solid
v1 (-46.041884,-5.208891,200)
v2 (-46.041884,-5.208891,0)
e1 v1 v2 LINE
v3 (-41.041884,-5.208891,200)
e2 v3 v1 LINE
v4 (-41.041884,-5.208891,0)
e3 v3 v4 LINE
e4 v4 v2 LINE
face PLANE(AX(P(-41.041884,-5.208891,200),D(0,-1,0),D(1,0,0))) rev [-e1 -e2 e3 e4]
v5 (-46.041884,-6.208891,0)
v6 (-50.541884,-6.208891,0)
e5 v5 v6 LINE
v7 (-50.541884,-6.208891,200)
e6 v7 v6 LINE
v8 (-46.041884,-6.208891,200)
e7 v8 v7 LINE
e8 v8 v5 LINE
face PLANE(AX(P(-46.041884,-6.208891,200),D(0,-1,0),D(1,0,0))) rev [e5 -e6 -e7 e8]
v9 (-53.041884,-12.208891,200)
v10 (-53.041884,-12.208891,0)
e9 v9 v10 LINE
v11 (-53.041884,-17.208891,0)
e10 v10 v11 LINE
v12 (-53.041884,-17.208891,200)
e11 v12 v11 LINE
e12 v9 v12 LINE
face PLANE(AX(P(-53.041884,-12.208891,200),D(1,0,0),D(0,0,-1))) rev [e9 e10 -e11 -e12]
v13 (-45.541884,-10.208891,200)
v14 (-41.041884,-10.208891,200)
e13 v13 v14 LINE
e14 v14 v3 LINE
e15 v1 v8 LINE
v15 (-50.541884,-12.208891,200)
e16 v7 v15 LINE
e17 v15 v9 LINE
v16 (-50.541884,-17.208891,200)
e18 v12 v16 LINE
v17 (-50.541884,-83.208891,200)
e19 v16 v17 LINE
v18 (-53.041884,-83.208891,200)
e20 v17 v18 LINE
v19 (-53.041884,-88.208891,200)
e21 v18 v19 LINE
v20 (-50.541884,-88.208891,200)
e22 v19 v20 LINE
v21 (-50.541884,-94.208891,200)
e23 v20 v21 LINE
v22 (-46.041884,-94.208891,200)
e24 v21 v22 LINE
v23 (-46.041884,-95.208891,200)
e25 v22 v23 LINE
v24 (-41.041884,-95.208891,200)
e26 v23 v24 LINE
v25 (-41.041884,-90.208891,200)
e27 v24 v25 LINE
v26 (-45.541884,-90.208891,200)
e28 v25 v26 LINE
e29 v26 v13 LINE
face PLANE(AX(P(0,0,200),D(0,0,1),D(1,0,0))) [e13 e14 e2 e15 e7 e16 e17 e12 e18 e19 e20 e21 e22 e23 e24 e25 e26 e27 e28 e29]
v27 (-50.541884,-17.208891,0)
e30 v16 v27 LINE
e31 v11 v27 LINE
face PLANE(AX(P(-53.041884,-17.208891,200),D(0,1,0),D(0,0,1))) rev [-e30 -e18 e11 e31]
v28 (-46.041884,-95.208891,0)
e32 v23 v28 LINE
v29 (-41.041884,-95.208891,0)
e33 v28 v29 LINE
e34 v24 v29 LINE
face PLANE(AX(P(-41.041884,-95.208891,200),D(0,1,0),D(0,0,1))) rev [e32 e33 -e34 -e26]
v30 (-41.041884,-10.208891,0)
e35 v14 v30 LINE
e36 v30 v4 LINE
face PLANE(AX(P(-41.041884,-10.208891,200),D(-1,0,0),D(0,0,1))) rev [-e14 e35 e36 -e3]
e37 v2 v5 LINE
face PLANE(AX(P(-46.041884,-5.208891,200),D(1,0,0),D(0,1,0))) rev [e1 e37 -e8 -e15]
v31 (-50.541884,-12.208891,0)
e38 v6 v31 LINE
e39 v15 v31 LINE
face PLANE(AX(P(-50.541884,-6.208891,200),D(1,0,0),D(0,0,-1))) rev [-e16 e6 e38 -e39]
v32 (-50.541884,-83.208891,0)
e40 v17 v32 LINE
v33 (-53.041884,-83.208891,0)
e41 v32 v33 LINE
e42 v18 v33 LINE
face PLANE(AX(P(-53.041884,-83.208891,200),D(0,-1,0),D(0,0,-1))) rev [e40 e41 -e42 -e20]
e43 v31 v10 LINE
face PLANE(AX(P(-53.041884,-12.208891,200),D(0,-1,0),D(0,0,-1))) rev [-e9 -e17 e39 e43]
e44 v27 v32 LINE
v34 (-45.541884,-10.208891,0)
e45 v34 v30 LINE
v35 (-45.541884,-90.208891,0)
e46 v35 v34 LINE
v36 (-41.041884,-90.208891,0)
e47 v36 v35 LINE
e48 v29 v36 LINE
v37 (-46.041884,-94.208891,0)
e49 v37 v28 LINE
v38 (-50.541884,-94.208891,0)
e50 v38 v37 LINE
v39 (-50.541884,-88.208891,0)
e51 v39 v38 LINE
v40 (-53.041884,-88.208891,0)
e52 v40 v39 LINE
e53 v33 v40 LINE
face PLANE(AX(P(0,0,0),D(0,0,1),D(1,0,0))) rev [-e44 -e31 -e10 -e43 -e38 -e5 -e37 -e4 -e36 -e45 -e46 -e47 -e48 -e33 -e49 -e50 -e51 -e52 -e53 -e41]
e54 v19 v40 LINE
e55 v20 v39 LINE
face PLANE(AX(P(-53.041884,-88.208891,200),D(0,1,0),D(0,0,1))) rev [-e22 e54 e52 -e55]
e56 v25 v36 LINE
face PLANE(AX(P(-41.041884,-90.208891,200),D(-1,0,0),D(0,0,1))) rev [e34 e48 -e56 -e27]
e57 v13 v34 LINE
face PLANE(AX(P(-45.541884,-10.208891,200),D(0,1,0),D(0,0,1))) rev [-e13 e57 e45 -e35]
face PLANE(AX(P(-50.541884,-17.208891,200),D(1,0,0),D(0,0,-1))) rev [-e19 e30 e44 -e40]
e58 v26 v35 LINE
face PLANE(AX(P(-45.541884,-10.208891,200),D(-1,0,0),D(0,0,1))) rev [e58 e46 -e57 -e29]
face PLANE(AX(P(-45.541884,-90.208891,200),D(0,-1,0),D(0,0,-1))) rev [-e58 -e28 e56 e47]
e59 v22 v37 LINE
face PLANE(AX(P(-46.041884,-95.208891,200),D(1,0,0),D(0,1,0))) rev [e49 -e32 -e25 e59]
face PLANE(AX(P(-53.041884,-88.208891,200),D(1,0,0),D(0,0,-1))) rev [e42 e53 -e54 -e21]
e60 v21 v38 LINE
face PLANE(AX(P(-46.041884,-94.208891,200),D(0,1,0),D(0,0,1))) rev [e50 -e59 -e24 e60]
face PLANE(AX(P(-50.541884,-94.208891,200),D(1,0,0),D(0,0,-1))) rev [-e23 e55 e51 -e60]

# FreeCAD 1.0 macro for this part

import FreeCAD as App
import Part
import Sketcher

V = App.Vector
Q = App.Units.Quantity

doc = App.newDocument("Part")
body = doc.addObject("PartDesign::Body", "Body")

sketch1 = body.newObject("Sketcher::SketchObject", "Sketch")
sketch1.AttachmentSupport = (doc.getObject("XY_Plane"), [""])
sketch1.MapMode = "FlatFace"
sketch1.addGeometry(Part.LineSegment(V(-46, -5.2, 0), V(-46, -6.2, 0)), False)
sketch1.addGeometry(Part.LineSegment(V(-46, -6.2, 0), V(-50.5, -6.2, 0)), False)
sketch1.addGeometry(Part.LineSegment(V(-50.5, -6.2, 0), V(-50.5, -12.2, 0)), False)
sketch1.addGeometry(Part.LineSegment(V(-50.5, -12.2, 0), V(-53, -12.2, 0)), False)
sketch1.addGeometry(Part.LineSegment(V(-53, -12.2, 0), V(-53, -17.2, 0)), False)
sketch1.addGeometry(Part.LineSegment(V(-53, -17.2, 0), V(-50.5, -17.2, 0)), False)
sketch1.addGeometry(Part.LineSegment(V(-50.5, -17.2, 0), V(-50.5, -83.2, 0)), False)
sketch1.addGeometry(Part.LineSegment(V(-50.5, -83.2, 0), V(-53, -83.2, 0)), False)
sketch1.addGeometry(Part.LineSegment(V(-53, -83.2, 0), V(-53, -88.2, 0)), False)
sketch1.addGeometry(Part.LineSegment(V(-53, -88.2, 0), V(-50.5, -88.2, 0)), False)
sketch1.addGeometry(Part.LineSegment(V(-50.5, -88.2, 0), V(-50.5, -94.2, 0)), False)
sketch1.addGeometry(Part.LineSegment(V(-50.5, -94.2, 0), V(-46, -94.2, 0)), False)
sketch1.addGeometry(Part.LineSegment(V(-46, -94.2, 0), V(-46, -95.2, 0)), False)
sketch1.addGeometry(Part.LineSegment(V(-46, -95.2, 0), V(-41, -95.2, 0)), False)
sketch1.addGeometry(Part.LineSegment(V(-41, -95.2, 0), V(-41, -90.2, 0)), False)
sketch1.addGeometry(Part.LineSegment(V(-41, -90.2, 0), V(-45.5, -90.2, 0)), False)
sketch1.addGeometry(Part.LineSegment(V(-45.5, -90.2, 0), V(-45.5, -10.2, 0)), False)
sketch1.addGeometry(Part.LineSegment(V(-45.5, -10.2, 0), V(-41, -10.2, 0)), False)
sketch1.addGeometry(Part.LineSegment(V(-41, -10.2, 0), V(-41, -5.2, 0)), False)
sketch1.addGeometry(Part.LineSegment(V(-41, -5.2, 0), V(-46, -5.2, 0)), False)
sketch1.addConstraint(Sketcher.Constraint("Coincident", 0, 2, 1, 1))
sketch1.addConstraint(Sketcher.Constraint("Coincident", 1, 2, 2, 1))
sketch1.addConstraint(Sketcher.Constraint("Coincident", 2, 2, 3, 1))
sketch1.addConstraint(Sketcher.Constraint("Coincident", 3, 2, 4, 1))
sketch1.addConstraint(Sketcher.Constraint("Coincident", 4, 2, 5, 1))
sketch1.addConstraint(Sketcher.Constraint("Coincident", 5, 2, 6, 1))
sketch1.addConstraint(Sketcher.Constraint("Coincident", 6, 2, 7, 1))
sketch1.addConstraint(Sketcher.Constraint("Coincident", 7, 2, 8, 1))
sketch1.addConstraint(Sketcher.Constraint("Coincident", 8, 2, 9, 1))
sketch1.addConstraint(Sketcher.Constraint("Coincident", 9, 2, 10, 1))
sketch1.addConstraint(Sketcher.Constraint("Coincident", 10, 2, 11, 1))
sketch1.addConstraint(Sketcher.Constraint("Coincident", 11, 2, 12, 1))
sketch1.addConstraint(Sketcher.Constraint("Coincident", 12, 2, 13, 1))
sketch1.addConstraint(Sketcher.Constraint("Coincident", 13, 2, 14, 1))
sketch1.addConstraint(Sketcher.Constraint("Coincident", 14, 2, 15, 1))
sketch1.addConstraint(Sketcher.Constraint("Coincident", 15, 2, 16, 1))
sketch1.addConstraint(Sketcher.Constraint("Coincident", 16, 2, 17, 1))
sketch1.addConstraint(Sketcher.Constraint("Coincident", 17, 2, 18, 1))
sketch1.addConstraint(Sketcher.Constraint("Coincident", 18, 2, 19, 1))
sketch1.addConstraint(Sketcher.Constraint("Coincident", 19, 2, 0, 1))
sketch1.addConstraint(Sketcher.Constraint("Vertical", 0))
sketch1.addConstraint(Sketcher.Constraint("Horizontal", 1))
sketch1.addConstraint(Sketcher.Constraint("Vertical", 2))
sketch1.addConstraint(Sketcher.Constraint("Horizontal", 3))
sketch1.addConstraint(Sketcher.Constraint("Vertical", 4))
sketch1.addConstraint(Sketcher.Constraint("Horizontal", 5))
sketch1.addConstraint(Sketcher.Constraint("Vertical", 6))
sketch1.addConstraint(Sketcher.Constraint("Horizontal", 7))
sketch1.addConstraint(Sketcher.Constraint("Vertical", 8))
sketch1.addConstraint(Sketcher.Constraint("Horizontal", 9))
sketch1.addConstraint(Sketcher.Constraint("Vertical", 10))
sketch1.addConstraint(Sketcher.Constraint("Horizontal", 11))
sketch1.addConstraint(Sketcher.Constraint("Vertical", 12))
sketch1.addConstraint(Sketcher.Constraint("Horizontal", 13))
sketch1.addConstraint(Sketcher.Constraint("Vertical", 14))
sketch1.addConstraint(Sketcher.Constraint("Horizontal", 15))
sketch1.addConstraint(Sketcher.Constraint("Vertical", 16))
sketch1.addConstraint(Sketcher.Constraint("Horizontal", 17))
sketch1.addConstraint(Sketcher.Constraint("Vertical", 18))
sketch1.addConstraint(Sketcher.Constraint("Horizontal", 19))
sketch1.addConstraint(Sketcher.Constraint("Vertical", 2, 2, 5, 2))
sketch1.addConstraint(Sketcher.Constraint("Vertical", 4, 2, 7, 2))
sketch1.addConstraint(Sketcher.Constraint("Vertical", 6, 2, 9, 2))
sketch1.addConstraint(Sketcher.Constraint("Vertical", 0, 2, 11, 2))
sketch1.addConstraint(Sketcher.Constraint("Vertical", 14, 2, 17, 2))
sketch1.addConstraint(Sketcher.Constraint("Equal", 11, 15))
sketch1.addConstraint(Sketcher.Constraint("Equal", 19, 4))
sketch1.addConstraint(Sketcher.Constraint("Equal", 4, 8))
sketch1.addConstraint(Sketcher.Constraint("Equal", 2, 10))
sketch1.addConstraint(Sketcher.Constraint("Equal", 0, 12))
sketch1.addConstraint(Sketcher.Constraint("Equal", 8, 14))
sketch1.addConstraint(Sketcher.Constraint("Equal", 14, 18))
sketch1.addConstraint(Sketcher.Constraint("DistanceX", 13, 1, 13, 2, Q("5 mm")))
sketch1.addConstraint(Sketcher.Constraint("DistanceY", 0, 2, 0, 1, Q("1 mm")))
sketch1.addConstraint(Sketcher.Constraint("DistanceY", 2, 2, 2, 1, Q("6 mm")))
sketch1.addConstraint(Sketcher.Constraint("DistanceY", 6, 2, 6, 1, Q("66 mm")))
sketch1.addConstraint(Sketcher.Constraint("DistanceX", 1, 2, 1, 1, Q("4.5 mm")))
sketch1.addConstraint(Sketcher.Constraint("DistanceX", 3, 2, 3, 1, Q("2.5 mm")))
sketch1.addConstraint(Sketcher.Constraint("DistanceY", 0, 2, -1, 1, Q("6.208891 mm")))
sketch1.addConstraint(Sketcher.Constraint("DistanceX", 0, 2, -1, 1, Q("46.041884 mm")))
pad1 = body.newObject("PartDesign::Pad", "Pad")
pad1.Profile = sketch1
pad1.Length = 200

doc.recompute()
